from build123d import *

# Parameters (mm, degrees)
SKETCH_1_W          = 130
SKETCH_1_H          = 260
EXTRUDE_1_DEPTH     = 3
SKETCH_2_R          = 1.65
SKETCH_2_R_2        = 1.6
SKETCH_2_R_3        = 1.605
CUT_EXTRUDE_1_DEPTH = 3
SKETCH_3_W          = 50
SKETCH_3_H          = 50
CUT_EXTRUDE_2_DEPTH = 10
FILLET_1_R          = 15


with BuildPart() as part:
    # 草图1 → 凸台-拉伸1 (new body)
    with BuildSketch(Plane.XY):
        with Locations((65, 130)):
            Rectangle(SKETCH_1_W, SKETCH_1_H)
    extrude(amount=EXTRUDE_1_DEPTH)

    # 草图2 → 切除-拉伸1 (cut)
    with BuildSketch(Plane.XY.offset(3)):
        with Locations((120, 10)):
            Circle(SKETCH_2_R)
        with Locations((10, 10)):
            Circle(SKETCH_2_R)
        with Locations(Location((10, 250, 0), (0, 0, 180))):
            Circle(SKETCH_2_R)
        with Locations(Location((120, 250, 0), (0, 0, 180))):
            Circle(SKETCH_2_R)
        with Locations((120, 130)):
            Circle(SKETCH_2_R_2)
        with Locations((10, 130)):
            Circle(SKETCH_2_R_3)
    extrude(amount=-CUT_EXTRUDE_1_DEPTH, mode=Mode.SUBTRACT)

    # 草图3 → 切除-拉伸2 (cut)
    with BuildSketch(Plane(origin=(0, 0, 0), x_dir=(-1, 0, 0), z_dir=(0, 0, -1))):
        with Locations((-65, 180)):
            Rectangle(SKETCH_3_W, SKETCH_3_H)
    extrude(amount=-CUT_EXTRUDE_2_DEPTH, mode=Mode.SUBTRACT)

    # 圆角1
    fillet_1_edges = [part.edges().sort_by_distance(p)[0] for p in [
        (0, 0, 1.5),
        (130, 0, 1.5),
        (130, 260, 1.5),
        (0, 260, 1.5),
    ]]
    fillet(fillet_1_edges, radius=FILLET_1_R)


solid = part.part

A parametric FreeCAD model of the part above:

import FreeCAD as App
import Part
import Sketcher
from FreeCAD import Vector


def edges_at(feature, points):
    """Names of the edges that pass closest to the given points."""
    edges = feature.Shape.Edges
    near = lambda p: min(range(len(edges)), key=lambda i: edges[i].distToShape(Part.Vertex(*p))[0])
    return sorted({f"Edge{near(p) + 1}" for p in points})

doc = App.newDocument("Part")
body = doc.addObject("PartDesign::Body", "Body")

sketch1 = body.newObject("Sketcher::SketchObject", "Sketch")
sketch1.AttachmentSupport = (doc.getObject("XY_Plane"), [""])
sketch1.MapMode = "FlatFace"
sketch1.addGeometry([
    Part.LineSegment(Vector(0, 260, 0), Vector(0, 0, 0)),
    Part.LineSegment(Vector(0, 0, 0), Vector(130, 0, 0)),
    Part.LineSegment(Vector(130, 0, 0), Vector(130, 260, 0)),
    Part.LineSegment(Vector(130, 260, 0), Vector(0, 260, 0)),
], False)
sketch1.addConstraint([
    Sketcher.Constraint("Coincident", 0, 2, 1, 1),
    Sketcher.Constraint("Coincident", 1, 2, 2, 1),
    Sketcher.Constraint("Coincident", 2, 2, 3, 1),
    Sketcher.Constraint("Coincident", 3, 2, 0, 1),
    Sketcher.Constraint("Vertical", 0),
    Sketcher.Constraint("Horizontal", 1),
    Sketcher.Constraint("Vertical", 2),
    Sketcher.Constraint("Horizontal", 3),
    Sketcher.Constraint("Coincident", 0, 2, -1, 1),
    Sketcher.Constraint("DistanceX", 1, 1, 1, 2, 130.0),
    Sketcher.Constraint("DistanceY", 0, 2, 0, 1, 260.0),
])
pad1 = body.newObject("PartDesign::Pad", "Pad")
pad1.Profile = sketch1
pad1.Length = 3

sketch2 = body.newObject("Sketcher::SketchObject", "Sketch001")
sketch2.AttachmentSupport = (doc.getObject("XY_Plane"), [""])
sketch2.MapMode = "FlatFace"
sketch2.AttachmentOffset = App.Placement(Vector(0, 0, 3), App.Rotation())
sketch2.addGeometry([
    Part.Circle(Vector(120, 10, 0), Vector(0, 0, 1), 1.6),
    Part.Circle(Vector(10, 10, 0), Vector(0, 0, 1), 1.6),
    Part.Circle(Vector(10, 250, 0), Vector(0, 0, 1), 1.6),
    Part.Circle(Vector(120, 250, 0), Vector(0, 0, 1), 1.6),
    Part.Circle(Vector(120, 130, 0), Vector(0, 0, 1), 1.6),
    Part.Circle(Vector(10, 130, 0), Vector(0, 0, 1), 1.6),
], False)
sketch2.addConstraint([
    Sketcher.Constraint("Equal", 0, 1),
    Sketcher.Constraint("Equal", 1, 2),
    Sketcher.Constraint("Equal", 2, 3),
    Sketcher.Constraint("Horizontal", 0, 3, 1, 3),
    Sketcher.Constraint("Horizontal", 2, 3, 3, 3),
    Sketcher.Constraint("Horizontal", 4, 3, 5, 3),
    Sketcher.Constraint("Vertical", 1, 3, 2, 3),
    Sketcher.Constraint("Vertical", 0, 3, 3, 3),
    Sketcher.Constraint("Vertical", 3, 3, 4, 3),
    Sketcher.Constraint("Vertical", 2, 3, 5, 3),
    Sketcher.Constraint("Diameter", 0, 3.3),
    Sketcher.Constraint("Diameter", 4, 3.2),
    Sketcher.Constraint("Diameter", 5, 3.21),
    Sketcher.Constraint("DistanceX", -1, 1, 0, 3, 120.0),
    Sketcher.Constraint("DistanceY", -1, 1, 0, 3, 10.0),
    Sketcher.Constraint("DistanceX", -1, 1, 1, 3, 10.0),
    Sketcher.Constraint("DistanceY", -1, 1, 2, 3, 250.0),
    Sketcher.Constraint("DistanceY", -1, 1, 4, 3, 130.0),
])
pocket1 = body.newObject("PartDesign::Pocket", "Pocket")
pocket1.Profile = sketch2
pocket1.Length = 3

sketch3 = body.newObject("Sketcher::SketchObject", "Sketch002")
sketch3.AttachmentSupport = (doc.getObject("XY_Plane"), [""])
sketch3.MapMode = "FlatFace"
sketch3.addGeometry([
    Part.LineSegment(Vector(90, 205, 0), Vector(90, 155, 0)),
    Part.LineSegment(Vector(90, 155, 0), Vector(40, 155, 0)),
    Part.LineSegment(Vector(40, 155, 0), Vector(40, 205, 0)),
    Part.LineSegment(Vector(40, 205, 0), Vector(90, 205, 0)),
], False)
sketch3.addConstraint([
    Sketcher.Constraint("Coincident", 0, 2, 1, 1),
    Sketcher.Constraint("Coincident", 1, 2, 2, 1),
    Sketcher.Constraint("Coincident", 2, 2, 3, 1),
    Sketcher.Constraint("Coincident", 3, 2, 0, 1),
    Sketcher.Constraint("Vertical", 0),
    Sketcher.Constraint("Horizontal", 1),
    Sketcher.Constraint("Vertical", 2),
    Sketcher.Constraint("Horizontal", 3),
    Sketcher.Constraint("Equal", 3, 0),
    Sketcher.Constraint("DistanceX", 1, 2, 1, 1, 50.0),
    Sketcher.Constraint("DistanceX", -1, 1, 0, 2, 90.0),
    Sketcher.Constraint("DistanceY", -1, 1, 0, 2, 155.0),
])
pocket2 = body.newObject("PartDesign::Pocket", "Pocket001")
pocket2.Profile = sketch3
pocket2.Length = 10
pocket2.Reversed = True
doc.recompute()

fillet = body.newObject("PartDesign::Fillet", "Fillet")
fillet.Base = (pocket2, edges_at(pocket2, [
    (0, 0, 1.5),
    (130, 0, 1.5),
    (130, 260, 1.5),
    (0, 260, 1.5),
]))
fillet.Radius = 15

doc.recompute()
